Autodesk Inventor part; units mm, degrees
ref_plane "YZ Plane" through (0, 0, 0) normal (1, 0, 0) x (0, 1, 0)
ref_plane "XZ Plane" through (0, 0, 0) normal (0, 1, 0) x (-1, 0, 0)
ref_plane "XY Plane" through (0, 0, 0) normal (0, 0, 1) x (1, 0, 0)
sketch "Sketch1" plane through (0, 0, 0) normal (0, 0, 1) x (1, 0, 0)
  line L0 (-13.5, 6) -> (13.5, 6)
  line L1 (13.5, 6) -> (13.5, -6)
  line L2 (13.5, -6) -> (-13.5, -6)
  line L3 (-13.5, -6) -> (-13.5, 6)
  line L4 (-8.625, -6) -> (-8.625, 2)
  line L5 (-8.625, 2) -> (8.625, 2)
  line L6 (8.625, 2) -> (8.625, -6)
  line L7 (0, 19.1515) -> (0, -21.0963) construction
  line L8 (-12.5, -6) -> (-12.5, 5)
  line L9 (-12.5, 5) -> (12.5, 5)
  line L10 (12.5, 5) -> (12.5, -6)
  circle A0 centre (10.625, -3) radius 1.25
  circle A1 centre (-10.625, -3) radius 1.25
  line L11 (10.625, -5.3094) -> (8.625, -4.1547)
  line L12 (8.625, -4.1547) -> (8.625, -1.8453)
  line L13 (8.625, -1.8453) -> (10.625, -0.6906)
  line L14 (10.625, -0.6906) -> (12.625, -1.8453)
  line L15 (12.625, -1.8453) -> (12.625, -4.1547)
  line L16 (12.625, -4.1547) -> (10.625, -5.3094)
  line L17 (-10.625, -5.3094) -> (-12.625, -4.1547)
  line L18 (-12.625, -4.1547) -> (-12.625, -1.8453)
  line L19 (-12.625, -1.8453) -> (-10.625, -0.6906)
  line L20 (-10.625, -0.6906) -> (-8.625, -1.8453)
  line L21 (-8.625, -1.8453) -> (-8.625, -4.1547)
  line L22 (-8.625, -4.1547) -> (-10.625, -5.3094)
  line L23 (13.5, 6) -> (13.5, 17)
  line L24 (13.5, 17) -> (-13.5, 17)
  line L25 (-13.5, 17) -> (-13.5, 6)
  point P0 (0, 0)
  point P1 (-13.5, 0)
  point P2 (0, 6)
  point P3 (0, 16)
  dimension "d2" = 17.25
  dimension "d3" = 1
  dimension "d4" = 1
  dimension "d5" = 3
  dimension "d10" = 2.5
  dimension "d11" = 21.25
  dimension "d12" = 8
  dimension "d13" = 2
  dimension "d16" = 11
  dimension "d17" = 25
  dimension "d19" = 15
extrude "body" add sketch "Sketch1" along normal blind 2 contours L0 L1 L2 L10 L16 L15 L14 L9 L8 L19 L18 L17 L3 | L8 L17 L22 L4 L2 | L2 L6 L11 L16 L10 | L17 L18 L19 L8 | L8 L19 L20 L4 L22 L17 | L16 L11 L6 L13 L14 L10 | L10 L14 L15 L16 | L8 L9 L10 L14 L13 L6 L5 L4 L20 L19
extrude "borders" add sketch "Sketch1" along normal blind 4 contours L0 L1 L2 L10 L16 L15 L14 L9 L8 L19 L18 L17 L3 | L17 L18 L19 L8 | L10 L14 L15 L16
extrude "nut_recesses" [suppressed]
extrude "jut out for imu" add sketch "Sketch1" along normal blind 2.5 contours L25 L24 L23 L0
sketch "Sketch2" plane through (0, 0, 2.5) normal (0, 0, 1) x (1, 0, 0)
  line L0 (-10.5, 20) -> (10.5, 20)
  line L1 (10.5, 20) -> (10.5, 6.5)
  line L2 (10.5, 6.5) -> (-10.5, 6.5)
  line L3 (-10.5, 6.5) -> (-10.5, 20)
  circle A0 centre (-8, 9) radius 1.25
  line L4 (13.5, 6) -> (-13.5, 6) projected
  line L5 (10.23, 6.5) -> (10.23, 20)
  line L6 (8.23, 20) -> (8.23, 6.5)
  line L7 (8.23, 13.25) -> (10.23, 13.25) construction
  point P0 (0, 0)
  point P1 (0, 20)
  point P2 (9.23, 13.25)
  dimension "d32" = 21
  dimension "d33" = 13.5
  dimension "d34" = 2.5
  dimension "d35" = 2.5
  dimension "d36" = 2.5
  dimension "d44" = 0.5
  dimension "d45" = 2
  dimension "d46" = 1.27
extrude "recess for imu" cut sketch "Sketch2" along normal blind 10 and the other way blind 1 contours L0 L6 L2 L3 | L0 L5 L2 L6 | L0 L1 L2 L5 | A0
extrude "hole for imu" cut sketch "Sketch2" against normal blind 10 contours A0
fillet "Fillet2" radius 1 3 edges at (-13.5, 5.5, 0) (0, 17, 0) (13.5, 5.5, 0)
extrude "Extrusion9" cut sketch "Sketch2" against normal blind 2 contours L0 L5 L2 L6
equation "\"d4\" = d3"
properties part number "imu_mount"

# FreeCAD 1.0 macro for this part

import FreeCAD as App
import Part
import Sketcher
Q = App.Units.Quantity


def edges_at(feature, points):
    """Names of the edges that pass closest to the given points."""
    edges = feature.Shape.Edges
    near = lambda p: min(range(len(edges)), key=lambda i: edges[i].distToShape(Part.Vertex(*p))[0])
    return sorted({f"Edge{near(p) + 1}" for p in points})


def add_polygon(sketch, points):
    """Adds a closed chain of lines whose ends are joined by coincident constraints."""
    first, n = sketch.GeometryCount, len(points)
    for a, b in zip(points, points[1:] + points[:1]):
        sketch.addGeometry(Part.LineSegment(App.Vector(*a, 0), App.Vector(*b, 0)), False)
    for i in range(n):
        sketch.addConstraint(Sketcher.Constraint("Coincident", first + i, 2, first + (i + 1) % n, 1))

doc = App.newDocument("Part")
body = doc.addObject("PartDesign::Body", "Body")

sketch1 = body.newObject("Sketcher::SketchObject", "Sketch")
sketch1.AttachmentSupport = (doc.getObject("XY_Plane"), [""])
sketch1.MapMode = "FlatFace"
add_polygon(sketch1, [(13.5, 6), (-13.5, 6), (-13.5, -6), (-8.625, -6), (-8.625, 2), (8.625, 2), (8.625, -6), (13.5, -6)])
sketch1.addGeometry(Part.Circle(App.Vector(10.625, -3, 0), App.Vector(0, 0, 1), 1.25), False)
sketch1.addGeometry(Part.Circle(App.Vector(-10.625, -3, 0), App.Vector(0, 0, 1), 1.25), False)
sketch1.addConstraint(Sketcher.Constraint("Horizontal", 0))
sketch1.addConstraint(Sketcher.Constraint("Vertical", 1))
sketch1.addConstraint(Sketcher.Constraint("Horizontal", 2))
sketch1.addConstraint(Sketcher.Constraint("Vertical", 3))
sketch1.addConstraint(Sketcher.Constraint("Horizontal", 4))
sketch1.addConstraint(Sketcher.Constraint("Vertical", 5))
sketch1.addConstraint(Sketcher.Constraint("Horizontal", 6))
sketch1.addConstraint(Sketcher.Constraint("Vertical", 7))
sketch1.addConstraint(Sketcher.Constraint("Equal", 8, 9))
sketch1.addConstraint(Sketcher.Constraint("Symmetric", 0, 2, 6, 2, -1, 1))
sketch1.addConstraint(Sketcher.Constraint("Symmetric", 8, 3, 9, 3, -2))
sketch1.addConstraint(Sketcher.Constraint("Symmetric", 2, 2, 5, 2, -2))
sketch1.addConstraint(Sketcher.Constraint("Diameter", 8, Q("2.5 mm")))
sketch1.addConstraint(Sketcher.Constraint("DistanceY", 3, 1, 3, 2, Q("8 mm")))
sketch1.addConstraint(Sketcher.Constraint("DistanceY", 8, 3, -1, 1, Q("3 mm")))
sketch1.addConstraint(Sketcher.Constraint("DistanceY", -1, 1, 3, 2, Q("2 mm")))
sketch1.addConstraint(Sketcher.Constraint("DistanceX", 9, 3, 2, 2, Q("2 mm")))
sketch1.addConstraint(Sketcher.Constraint("DistanceX", 4, 1, 4, 2, Q("17.25 mm")))
sketch1.addConstraint(Sketcher.Constraint("DistanceX", 0, 2, 0, 1, Q("27 mm")))
pad1 = body.newObject("PartDesign::Pad", "Pad")
pad1.Profile = sketch1
pad1.Length = 2

sketch2 = body.newObject("Sketcher::SketchObject", "Sketch001")
sketch2.AttachmentSupport = (doc.getObject("XY_Plane"), [""])
sketch2.MapMode = "FlatFace"
add_polygon(sketch2, [(13.5, 6), (-13.5, 6), (-13.5, -6), (-12.5, -6), (-12.5, 5), (12.5, 5), (12.5, -6), (13.5, -6)])
sketch2.addConstraint(Sketcher.Constraint("Horizontal", 0))
sketch2.addConstraint(Sketcher.Constraint("Vertical", 1))
sketch2.addConstraint(Sketcher.Constraint("Horizontal", 2))
sketch2.addConstraint(Sketcher.Constraint("Vertical", 3))
sketch2.addConstraint(Sketcher.Constraint("Horizontal", 4))
sketch2.addConstraint(Sketcher.Constraint("Vertical", 5))
sketch2.addConstraint(Sketcher.Constraint("Horizontal", 6))
sketch2.addConstraint(Sketcher.Constraint("Vertical", 7))
sketch2.addConstraint(Sketcher.Constraint("Symmetric", 0, 2, 6, 2, -1, 1))
sketch2.addConstraint(Sketcher.Constraint("Symmetric", 2, 2, 5, 2, -2))
sketch2.addConstraint(Sketcher.Constraint("DistanceX", 2, 1, 2, 2, Q("1 mm")))
sketch2.addConstraint(Sketcher.Constraint("DistanceX", 4, 1, 4, 2, Q("25 mm")))
sketch2.addConstraint(Sketcher.Constraint("DistanceY", 3, 1, 3, 2, Q("11 mm")))
sketch2.addConstraint(Sketcher.Constraint("DistanceY", 3, 2, 0, 2, Q("1 mm")))
pad2 = body.newObject("PartDesign::Pad", "Pad001")
pad2.Profile = sketch2
pad2.Length = 4

sketch3 = body.newObject("Sketcher::SketchObject", "Sketch002")
sketch3.AttachmentSupport = (doc.getObject("XY_Plane"), [""])
sketch3.MapMode = "FlatFace"
add_polygon(sketch3, [(-13.5, 17), (-13.5, 6), (13.5, 6), (13.5, 17)])
sketch3.addConstraint(Sketcher.Constraint("Vertical", 0))
sketch3.addConstraint(Sketcher.Constraint("Horizontal", 1))
sketch3.addConstraint(Sketcher.Constraint("Vertical", 2))
sketch3.addConstraint(Sketcher.Constraint("Horizontal", 3))
sketch3.addConstraint(Sketcher.Constraint("DistanceY", 0, 2, 0, 1, Q("11 mm")))
sketch3.addConstraint(Sketcher.Constraint("DistanceX", 1, 1, 1, 2, Q("27 mm")))
sketch3.addConstraint(Sketcher.Constraint("DistanceY", -1, 1, 0, 2, Q("6 mm")))
sketch3.addConstraint(Sketcher.Constraint("DistanceX", 0, 2, -1, 1, Q("13.5 mm")))
pad3 = body.newObject("PartDesign::Pad", "Pad002")
pad3.Profile = sketch3
pad3.Length = 2.5

sketch4 = body.newObject("Sketcher::SketchObject", "Sketch003")
sketch4.AttachmentSupport = (doc.getObject("XY_Plane"), [""])
sketch4.MapMode = "FlatFace"
sketch4.AttachmentOffset = App.Placement(App.Vector(0, 0, 2.5), App.Rotation())
add_polygon(sketch4, [(-10.5, 20), (-10.5, 6.5), (10.5, 6.5), (10.5, 20)])
sketch4.addConstraint(Sketcher.Constraint("Vertical", 0))
sketch4.addConstraint(Sketcher.Constraint("Horizontal", 1))
sketch4.addConstraint(Sketcher.Constraint("Vertical", 2))
sketch4.addConstraint(Sketcher.Constraint("Horizontal", 3))
sketch4.addConstraint(Sketcher.Constraint("DistanceX", 1, 1, 1, 2, Q("21 mm")))
sketch4.addConstraint(Sketcher.Constraint("DistanceY", 0, 2, 0, 1, Q("13.5 mm")))
sketch4.addConstraint(Sketcher.Constraint("DistanceY", -1, 1, 2, 2, Q("20 mm")))
sketch4.addConstraint(Sketcher.Constraint("DistanceX", 0, 2, -1, 1, Q("10.5 mm")))
pocket1 = body.newObject("PartDesign::Pocket", "Pocket")
pocket1.Profile = sketch4
pocket1.Type = "TwoLengths"
pocket1.Length = 10
pocket1.Length2 = 1
pocket1.Reversed = True

sketch5 = body.newObject("Sketcher::SketchObject", "Sketch004")
sketch5.AttachmentSupport = (doc.getObject("XY_Plane"), [""])
sketch5.MapMode = "FlatFace"
sketch5.AttachmentOffset = App.Placement(App.Vector(0, 0, 2.5), App.Rotation())
sketch5.addGeometry(Part.Circle(App.Vector(-8, 9, 0), App.Vector(0, 0, 1), 1.25), False)
sketch5.addConstraint(Sketcher.Constraint("Diameter", 0, Q("2.5 mm")))
sketch5.addConstraint(Sketcher.Constraint("DistanceX", 0, 3, -1, 1, Q("8 mm")))
sketch5.addConstraint(Sketcher.Constraint("DistanceY", -1, 1, 0, 3, Q("9 mm")))
pocket2 = body.newObject("PartDesign::Pocket", "Pocket001")
pocket2.Profile = sketch5
pocket2.Length = 10
doc.recompute()

fillet = body.newObject("PartDesign::Fillet", "Fillet")
fillet.Base = (pocket2, edges_at(pocket2, [(-13.5, 5.5, 0), (0, 17, 0), (13.5, 5.5, 0)]))
fillet.Radius = 1

sketch6 = body.newObject("Sketcher::SketchObject", "Sketch005")
sketch6.AttachmentSupport = (doc.getObject("XY_Plane"), [""])
sketch6.MapMode = "FlatFace"
sketch6.AttachmentOffset = App.Placement(App.Vector(0, 0, 2.5), App.Rotation())
add_polygon(sketch6, [(10.23, 20), (8.23, 20), (8.23, 6.5), (10.23, 6.5)])
sketch6.addConstraint(Sketcher.Constraint("Horizontal", 0))
sketch6.addConstraint(Sketcher.Constraint("Vertical", 1))
sketch6.addConstraint(Sketcher.Constraint("Horizontal", 2))
sketch6.addConstraint(Sketcher.Constraint("Vertical", 3))
sketch6.addConstraint(Sketcher.Constraint("DistanceX", 0, 2, 0, 1, Q("2 mm")))
sketch6.addConstraint(Sketcher.Constraint("DistanceY", 1, 2, 1, 1, Q("13.5 mm")))
sketch6.addConstraint(Sketcher.Constraint("DistanceY", -1, 1, 0, 2, Q("20 mm")))
sketch6.addConstraint(Sketcher.Constraint("DistanceX", -1, 1, 0, 2, Q("8.23 mm")))
pocket3 = body.newObject("PartDesign::Pocket", "Pocket002")
pocket3.Profile = sketch6
pocket3.Length = 2

doc.recompute()
